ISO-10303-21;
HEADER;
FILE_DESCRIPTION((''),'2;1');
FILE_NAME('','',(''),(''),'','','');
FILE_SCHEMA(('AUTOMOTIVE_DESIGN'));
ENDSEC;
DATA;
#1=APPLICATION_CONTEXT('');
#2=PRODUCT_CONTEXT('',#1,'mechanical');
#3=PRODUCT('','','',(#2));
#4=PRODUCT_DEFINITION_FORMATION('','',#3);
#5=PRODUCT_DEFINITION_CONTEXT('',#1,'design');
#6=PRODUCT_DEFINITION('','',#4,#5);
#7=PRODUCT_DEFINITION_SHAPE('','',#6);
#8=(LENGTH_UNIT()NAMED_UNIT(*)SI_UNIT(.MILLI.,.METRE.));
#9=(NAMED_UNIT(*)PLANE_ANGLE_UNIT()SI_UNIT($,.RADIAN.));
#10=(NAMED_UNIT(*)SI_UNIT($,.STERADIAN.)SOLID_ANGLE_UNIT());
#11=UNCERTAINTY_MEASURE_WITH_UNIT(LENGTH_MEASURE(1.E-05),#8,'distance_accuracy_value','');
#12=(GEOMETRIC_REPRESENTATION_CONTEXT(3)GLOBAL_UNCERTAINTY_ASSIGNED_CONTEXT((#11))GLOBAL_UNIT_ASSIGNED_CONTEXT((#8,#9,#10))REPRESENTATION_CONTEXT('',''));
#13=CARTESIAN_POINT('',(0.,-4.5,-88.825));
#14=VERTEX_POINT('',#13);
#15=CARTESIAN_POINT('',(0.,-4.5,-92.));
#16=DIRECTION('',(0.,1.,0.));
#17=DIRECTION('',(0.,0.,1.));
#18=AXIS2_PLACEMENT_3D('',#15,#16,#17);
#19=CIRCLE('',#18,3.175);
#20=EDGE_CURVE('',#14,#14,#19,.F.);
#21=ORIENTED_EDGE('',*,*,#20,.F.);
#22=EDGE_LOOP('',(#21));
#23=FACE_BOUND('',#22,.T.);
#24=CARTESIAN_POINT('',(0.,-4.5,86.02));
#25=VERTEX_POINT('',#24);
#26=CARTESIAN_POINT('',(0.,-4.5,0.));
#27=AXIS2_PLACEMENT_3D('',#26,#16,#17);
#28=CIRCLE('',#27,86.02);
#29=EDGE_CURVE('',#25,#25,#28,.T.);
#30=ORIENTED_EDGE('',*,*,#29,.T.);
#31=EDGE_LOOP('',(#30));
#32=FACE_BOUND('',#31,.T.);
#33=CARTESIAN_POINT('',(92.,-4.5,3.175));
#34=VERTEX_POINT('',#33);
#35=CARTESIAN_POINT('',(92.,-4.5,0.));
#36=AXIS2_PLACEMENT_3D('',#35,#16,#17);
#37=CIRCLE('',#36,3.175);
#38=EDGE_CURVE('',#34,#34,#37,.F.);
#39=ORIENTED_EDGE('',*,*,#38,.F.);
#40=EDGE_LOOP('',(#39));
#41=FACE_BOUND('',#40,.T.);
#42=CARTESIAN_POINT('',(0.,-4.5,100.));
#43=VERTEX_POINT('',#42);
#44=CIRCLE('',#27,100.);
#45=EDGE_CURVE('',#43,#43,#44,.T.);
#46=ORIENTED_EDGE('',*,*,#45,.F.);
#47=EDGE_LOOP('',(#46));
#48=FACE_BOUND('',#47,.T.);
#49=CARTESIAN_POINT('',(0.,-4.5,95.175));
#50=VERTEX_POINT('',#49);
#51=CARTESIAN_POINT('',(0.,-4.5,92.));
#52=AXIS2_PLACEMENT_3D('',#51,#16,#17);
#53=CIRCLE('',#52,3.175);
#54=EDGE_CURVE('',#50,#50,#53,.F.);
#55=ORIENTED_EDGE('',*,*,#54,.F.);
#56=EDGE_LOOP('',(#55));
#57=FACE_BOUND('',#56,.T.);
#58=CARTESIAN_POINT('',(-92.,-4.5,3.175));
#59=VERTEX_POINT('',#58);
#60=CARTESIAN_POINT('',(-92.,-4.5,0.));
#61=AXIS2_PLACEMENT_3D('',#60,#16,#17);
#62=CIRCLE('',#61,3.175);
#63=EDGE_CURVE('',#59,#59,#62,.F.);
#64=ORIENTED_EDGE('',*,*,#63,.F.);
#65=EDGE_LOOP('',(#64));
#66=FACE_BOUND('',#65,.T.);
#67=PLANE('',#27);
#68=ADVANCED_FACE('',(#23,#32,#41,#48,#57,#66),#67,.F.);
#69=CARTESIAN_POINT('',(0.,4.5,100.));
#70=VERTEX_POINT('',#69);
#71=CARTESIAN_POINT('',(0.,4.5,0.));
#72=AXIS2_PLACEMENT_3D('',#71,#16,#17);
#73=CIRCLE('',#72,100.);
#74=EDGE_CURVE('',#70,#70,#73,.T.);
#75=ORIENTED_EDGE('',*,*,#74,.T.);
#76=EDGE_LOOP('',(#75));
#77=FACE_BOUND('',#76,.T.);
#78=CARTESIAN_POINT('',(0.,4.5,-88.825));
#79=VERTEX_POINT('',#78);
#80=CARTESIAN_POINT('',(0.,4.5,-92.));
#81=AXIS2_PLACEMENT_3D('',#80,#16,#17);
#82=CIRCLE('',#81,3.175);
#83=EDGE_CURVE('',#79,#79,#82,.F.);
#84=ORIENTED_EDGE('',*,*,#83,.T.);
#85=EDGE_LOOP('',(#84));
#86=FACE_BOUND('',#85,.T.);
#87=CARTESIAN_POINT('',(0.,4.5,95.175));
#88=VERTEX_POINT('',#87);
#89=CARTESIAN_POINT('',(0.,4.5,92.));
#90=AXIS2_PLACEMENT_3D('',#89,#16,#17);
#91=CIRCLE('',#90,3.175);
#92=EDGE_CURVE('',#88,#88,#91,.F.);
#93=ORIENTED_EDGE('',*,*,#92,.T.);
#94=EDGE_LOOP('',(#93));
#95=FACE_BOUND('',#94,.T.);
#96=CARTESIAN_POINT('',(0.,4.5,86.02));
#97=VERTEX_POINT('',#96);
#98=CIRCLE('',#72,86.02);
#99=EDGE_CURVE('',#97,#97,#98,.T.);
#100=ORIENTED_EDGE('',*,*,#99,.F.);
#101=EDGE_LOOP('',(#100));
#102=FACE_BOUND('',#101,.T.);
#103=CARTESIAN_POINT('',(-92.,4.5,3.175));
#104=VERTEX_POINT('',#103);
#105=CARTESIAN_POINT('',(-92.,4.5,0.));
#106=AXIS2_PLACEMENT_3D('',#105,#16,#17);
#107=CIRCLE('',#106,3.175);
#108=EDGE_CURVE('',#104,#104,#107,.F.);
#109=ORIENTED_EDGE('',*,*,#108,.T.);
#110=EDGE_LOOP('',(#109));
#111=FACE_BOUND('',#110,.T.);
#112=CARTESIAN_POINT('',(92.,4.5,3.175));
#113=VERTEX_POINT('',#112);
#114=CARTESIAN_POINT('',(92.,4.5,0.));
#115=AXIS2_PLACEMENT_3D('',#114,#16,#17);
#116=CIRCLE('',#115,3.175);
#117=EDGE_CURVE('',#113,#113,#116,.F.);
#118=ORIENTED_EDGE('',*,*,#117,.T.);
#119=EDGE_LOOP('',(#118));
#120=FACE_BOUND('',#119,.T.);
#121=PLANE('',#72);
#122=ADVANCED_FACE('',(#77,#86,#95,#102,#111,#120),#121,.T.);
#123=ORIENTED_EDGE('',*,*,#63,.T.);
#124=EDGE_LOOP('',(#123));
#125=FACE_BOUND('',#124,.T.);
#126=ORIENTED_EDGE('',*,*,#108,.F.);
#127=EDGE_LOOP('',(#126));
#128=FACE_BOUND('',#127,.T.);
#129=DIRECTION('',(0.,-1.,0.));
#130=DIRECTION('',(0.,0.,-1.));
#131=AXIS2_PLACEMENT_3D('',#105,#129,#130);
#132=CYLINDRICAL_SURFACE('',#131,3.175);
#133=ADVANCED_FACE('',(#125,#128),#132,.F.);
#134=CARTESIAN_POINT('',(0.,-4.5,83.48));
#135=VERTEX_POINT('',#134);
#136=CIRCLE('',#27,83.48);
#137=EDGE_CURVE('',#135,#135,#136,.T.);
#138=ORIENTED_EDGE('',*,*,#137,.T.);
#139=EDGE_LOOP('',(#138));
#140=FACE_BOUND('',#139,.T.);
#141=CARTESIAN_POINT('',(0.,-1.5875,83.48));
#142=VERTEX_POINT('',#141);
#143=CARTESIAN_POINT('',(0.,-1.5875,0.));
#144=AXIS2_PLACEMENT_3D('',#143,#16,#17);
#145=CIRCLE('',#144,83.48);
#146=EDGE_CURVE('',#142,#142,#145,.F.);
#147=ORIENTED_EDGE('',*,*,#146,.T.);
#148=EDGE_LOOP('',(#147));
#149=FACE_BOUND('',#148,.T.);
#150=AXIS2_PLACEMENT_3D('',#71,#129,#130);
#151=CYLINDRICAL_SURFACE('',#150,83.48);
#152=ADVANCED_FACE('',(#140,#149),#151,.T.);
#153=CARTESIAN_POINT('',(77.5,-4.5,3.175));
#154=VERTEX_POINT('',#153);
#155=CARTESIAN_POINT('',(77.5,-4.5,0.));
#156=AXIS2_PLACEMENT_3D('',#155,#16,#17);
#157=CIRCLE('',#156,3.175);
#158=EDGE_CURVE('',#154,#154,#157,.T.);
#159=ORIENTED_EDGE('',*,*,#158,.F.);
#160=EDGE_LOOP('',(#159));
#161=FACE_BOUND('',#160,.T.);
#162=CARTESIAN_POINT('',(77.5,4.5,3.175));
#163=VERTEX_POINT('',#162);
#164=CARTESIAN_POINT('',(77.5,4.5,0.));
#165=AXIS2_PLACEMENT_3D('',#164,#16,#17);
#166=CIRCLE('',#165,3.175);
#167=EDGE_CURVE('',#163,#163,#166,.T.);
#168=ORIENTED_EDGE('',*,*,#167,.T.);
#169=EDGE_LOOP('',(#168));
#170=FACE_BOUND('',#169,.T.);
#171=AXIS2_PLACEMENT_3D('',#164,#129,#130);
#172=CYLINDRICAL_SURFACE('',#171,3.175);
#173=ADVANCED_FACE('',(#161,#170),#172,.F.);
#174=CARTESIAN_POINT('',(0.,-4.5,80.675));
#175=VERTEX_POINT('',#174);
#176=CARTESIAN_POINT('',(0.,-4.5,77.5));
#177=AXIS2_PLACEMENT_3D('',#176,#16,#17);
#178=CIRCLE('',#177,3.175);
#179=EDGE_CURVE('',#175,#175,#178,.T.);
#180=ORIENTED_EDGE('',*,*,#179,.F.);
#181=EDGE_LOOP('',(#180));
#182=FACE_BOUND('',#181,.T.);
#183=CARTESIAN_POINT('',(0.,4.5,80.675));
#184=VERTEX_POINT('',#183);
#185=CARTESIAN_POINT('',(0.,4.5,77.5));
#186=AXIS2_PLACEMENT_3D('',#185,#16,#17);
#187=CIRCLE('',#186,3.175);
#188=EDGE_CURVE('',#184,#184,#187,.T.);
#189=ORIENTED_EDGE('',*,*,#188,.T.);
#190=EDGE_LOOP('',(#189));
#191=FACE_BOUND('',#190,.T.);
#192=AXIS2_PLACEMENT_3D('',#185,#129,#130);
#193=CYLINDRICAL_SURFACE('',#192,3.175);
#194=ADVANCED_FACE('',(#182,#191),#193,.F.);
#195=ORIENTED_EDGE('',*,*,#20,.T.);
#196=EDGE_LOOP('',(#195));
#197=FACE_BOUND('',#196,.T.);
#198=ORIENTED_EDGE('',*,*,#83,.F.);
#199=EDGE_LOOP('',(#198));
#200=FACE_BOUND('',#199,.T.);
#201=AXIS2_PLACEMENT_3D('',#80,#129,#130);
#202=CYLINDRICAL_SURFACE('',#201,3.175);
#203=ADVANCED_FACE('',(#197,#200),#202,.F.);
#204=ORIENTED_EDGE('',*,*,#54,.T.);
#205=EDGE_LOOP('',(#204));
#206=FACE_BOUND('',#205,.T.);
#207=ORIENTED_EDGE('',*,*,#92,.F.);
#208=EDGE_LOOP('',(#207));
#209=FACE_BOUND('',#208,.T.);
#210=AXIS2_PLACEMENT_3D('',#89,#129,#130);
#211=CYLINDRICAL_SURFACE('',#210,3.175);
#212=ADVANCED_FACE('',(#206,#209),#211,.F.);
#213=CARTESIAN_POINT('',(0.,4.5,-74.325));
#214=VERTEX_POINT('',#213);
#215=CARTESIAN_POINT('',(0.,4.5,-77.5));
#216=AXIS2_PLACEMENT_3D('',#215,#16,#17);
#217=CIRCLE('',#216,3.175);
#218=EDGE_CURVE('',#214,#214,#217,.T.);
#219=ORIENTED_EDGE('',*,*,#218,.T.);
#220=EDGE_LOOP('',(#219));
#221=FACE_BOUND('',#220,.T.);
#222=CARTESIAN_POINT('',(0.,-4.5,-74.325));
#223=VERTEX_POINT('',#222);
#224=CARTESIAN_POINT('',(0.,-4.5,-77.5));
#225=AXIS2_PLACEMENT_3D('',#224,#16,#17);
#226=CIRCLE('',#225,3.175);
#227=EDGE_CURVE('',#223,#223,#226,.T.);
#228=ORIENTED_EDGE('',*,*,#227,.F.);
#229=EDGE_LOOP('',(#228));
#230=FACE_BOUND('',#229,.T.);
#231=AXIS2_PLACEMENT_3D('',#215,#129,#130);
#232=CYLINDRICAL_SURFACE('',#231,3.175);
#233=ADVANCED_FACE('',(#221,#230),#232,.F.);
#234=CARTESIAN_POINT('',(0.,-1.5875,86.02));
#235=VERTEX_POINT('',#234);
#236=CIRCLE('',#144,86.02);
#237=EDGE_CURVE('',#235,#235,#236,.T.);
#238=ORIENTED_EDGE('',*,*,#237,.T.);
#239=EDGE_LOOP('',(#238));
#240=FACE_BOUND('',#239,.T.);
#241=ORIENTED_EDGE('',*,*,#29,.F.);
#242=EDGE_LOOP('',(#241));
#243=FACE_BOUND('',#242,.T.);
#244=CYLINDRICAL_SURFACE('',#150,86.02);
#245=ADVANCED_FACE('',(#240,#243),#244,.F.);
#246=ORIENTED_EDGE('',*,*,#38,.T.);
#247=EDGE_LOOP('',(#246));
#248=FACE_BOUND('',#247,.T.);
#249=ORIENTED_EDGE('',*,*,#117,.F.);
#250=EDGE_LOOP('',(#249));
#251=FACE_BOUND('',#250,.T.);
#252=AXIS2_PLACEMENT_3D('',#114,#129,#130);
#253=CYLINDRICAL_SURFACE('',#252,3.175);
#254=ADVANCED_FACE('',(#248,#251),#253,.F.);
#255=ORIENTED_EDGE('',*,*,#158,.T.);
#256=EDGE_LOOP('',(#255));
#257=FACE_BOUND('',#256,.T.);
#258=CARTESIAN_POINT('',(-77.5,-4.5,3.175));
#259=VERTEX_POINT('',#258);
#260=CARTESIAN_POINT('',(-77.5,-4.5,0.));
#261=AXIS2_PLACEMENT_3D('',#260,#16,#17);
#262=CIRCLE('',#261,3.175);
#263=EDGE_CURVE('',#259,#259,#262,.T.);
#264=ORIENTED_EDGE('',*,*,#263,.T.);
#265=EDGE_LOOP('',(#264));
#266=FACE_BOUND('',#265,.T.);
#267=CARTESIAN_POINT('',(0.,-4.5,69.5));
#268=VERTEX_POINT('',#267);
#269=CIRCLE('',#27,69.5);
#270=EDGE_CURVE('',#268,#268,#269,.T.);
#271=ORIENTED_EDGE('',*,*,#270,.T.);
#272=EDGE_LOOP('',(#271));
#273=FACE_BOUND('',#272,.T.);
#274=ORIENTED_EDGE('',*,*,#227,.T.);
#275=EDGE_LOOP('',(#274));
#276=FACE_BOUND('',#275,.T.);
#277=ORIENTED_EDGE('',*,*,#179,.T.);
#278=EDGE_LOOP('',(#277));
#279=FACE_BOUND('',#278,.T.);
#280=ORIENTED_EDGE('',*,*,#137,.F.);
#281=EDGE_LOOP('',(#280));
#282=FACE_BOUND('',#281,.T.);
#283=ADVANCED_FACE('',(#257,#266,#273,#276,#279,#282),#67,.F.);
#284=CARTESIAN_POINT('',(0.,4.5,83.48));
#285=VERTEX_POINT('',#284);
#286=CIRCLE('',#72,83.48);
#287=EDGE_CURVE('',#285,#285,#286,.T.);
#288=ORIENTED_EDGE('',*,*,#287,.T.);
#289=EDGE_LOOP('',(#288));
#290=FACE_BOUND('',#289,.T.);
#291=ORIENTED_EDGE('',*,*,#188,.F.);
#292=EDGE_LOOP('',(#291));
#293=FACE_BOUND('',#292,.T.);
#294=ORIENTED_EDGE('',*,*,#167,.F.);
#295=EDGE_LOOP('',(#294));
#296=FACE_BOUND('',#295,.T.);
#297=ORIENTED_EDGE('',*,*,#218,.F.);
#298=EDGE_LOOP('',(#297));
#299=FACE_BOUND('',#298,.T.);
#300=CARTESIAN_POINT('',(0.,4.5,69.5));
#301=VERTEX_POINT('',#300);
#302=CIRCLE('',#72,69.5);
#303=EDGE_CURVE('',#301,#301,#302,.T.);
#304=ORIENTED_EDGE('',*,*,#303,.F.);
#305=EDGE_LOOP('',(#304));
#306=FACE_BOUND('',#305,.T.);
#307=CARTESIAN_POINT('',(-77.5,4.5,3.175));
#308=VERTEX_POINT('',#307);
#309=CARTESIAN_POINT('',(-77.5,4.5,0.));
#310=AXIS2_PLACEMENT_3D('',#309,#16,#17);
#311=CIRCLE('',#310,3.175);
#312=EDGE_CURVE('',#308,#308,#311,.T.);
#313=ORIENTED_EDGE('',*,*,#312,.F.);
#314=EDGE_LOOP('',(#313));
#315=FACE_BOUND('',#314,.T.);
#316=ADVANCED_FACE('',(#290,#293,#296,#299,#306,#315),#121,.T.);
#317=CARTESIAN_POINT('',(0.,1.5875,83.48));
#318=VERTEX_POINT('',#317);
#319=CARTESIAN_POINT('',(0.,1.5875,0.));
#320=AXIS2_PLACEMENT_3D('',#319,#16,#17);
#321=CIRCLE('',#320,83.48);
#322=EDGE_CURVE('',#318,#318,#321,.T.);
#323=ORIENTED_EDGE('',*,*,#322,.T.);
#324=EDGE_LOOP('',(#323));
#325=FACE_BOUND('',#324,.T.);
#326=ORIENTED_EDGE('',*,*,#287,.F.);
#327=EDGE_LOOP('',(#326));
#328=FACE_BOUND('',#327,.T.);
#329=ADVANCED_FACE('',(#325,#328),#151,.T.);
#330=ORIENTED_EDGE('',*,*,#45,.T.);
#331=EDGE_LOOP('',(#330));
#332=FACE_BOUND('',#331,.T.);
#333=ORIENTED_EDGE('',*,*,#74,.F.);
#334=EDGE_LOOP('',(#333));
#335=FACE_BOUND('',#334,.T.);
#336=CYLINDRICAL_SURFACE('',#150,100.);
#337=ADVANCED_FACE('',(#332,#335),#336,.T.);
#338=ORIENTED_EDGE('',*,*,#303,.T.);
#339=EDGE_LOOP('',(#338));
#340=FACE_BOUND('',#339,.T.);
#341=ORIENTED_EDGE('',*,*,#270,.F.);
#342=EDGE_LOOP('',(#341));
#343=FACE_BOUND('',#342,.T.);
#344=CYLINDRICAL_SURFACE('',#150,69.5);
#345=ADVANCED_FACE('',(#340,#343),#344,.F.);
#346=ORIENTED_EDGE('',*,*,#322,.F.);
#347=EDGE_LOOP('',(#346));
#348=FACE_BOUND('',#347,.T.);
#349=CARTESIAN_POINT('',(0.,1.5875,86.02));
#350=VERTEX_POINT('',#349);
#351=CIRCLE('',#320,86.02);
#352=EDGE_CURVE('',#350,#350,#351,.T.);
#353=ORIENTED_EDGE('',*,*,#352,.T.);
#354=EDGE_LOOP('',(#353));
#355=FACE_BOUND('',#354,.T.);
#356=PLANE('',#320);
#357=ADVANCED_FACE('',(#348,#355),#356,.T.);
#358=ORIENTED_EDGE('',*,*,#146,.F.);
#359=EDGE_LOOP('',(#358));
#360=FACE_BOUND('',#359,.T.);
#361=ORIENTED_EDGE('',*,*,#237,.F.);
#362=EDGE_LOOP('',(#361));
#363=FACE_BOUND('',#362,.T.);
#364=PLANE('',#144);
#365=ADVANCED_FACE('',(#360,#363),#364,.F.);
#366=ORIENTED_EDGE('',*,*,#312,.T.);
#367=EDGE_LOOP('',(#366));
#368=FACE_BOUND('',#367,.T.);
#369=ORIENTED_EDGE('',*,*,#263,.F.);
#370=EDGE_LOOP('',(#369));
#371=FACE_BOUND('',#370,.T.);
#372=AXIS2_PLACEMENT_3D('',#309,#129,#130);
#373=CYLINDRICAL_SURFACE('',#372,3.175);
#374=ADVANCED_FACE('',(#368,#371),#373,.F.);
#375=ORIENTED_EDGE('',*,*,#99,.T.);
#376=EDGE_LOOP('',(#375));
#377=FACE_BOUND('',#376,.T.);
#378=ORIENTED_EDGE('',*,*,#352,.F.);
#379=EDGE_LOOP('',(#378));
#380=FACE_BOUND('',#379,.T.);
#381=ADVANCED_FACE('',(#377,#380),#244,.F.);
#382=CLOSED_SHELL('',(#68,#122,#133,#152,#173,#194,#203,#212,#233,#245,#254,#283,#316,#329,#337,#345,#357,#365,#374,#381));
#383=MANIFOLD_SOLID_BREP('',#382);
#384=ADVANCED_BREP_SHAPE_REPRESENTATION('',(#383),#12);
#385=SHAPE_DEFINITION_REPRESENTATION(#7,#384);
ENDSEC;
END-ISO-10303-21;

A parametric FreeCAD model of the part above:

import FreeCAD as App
import Part
import Sketcher

V = App.Vector

doc = App.newDocument("Part")
body = doc.addObject("PartDesign::Body", "Body")

sketch1 = body.newObject("Sketcher::SketchObject", "Sketch")
sketch1.AttachmentSupport = (doc.getObject("XZ_Plane"), [""])
sketch1.MapMode = "FlatFace"
sketch1.addGeometry([
    Part.Circle(V(0, 0, 0), V(0, 0, 1), 100),
    Part.Circle(V(0, -92, 0), V(0, 0, 1), 3.2),
    Part.Circle(V(-92, 0, 0), V(0, 0, 1), 3.2),
    Part.Circle(V(92, 0, 0), V(0, 0, 1), 3.2),
    Part.Circle(V(0, 0, 0), V(0, 0, 1), 86),
    Part.Circle(V(0, 92, 0), V(0, 0, 1), 3.2),
], False)
sketch1.addConstraint([
    Sketcher.Constraint("Coincident", 0, 3, -1, 1),
    Sketcher.Constraint("Coincident", 4, 3, -1, 1),
    Sketcher.Constraint("Equal", 1, 2),
    Sketcher.Constraint("Equal", 2, 3),
    Sketcher.Constraint("Equal", 3, 5),
    Sketcher.Constraint("Symmetric", 2, 3, 3, 3, -1, 1),
    Sketcher.Constraint("Symmetric", 1, 3, 5, 3, -1, 1),
    Sketcher.Constraint("PointOnObject", 1, 3, -2),
    Sketcher.Constraint("PointOnObject", 2, 3, -1),
    Sketcher.Constraint("Diameter", 0, 200.0),
    Sketcher.Constraint("Diameter", 1, 6.35),
    Sketcher.Constraint("Diameter", 4, 172.04),
    Sketcher.Constraint("DistanceY", 1, 3, -1, 1, 92.0),
    Sketcher.Constraint("DistanceX", 2, 3, -1, 1, 92.0),
])
pad1 = body.newObject("PartDesign::Pad", "Pad")
pad1.Profile = sketch1
pad1.Length = 9
pad1.Midplane = True
body2 = doc.addObject("PartDesign::Body", "Body001")

sketch2 = body2.newObject("Sketcher::SketchObject", "Sketch001")
sketch2.AttachmentSupport = (doc.getObject("XZ_Plane001"), [""])
sketch2.MapMode = "FlatFace"
sketch2.addGeometry([
    Part.Circle(V(0, 0, 0), V(0, 0, 1), 83.5),
    Part.Circle(V(0, -77.5, 0), V(0, 0, 1), 3.2),
    Part.Circle(V(-77.5, 0, 0), V(0, 0, 1), 3.2),
    Part.Circle(V(77.5, 0, 0), V(0, 0, 1), 3.2),
    Part.Circle(V(0, 0, 0), V(0, 0, 1), 69.5),
    Part.Circle(V(0, 77.5, 0), V(0, 0, 1), 3.2),
], False)
sketch2.addConstraint([
    Sketcher.Constraint("Coincident", 0, 3, -1, 1),
    Sketcher.Constraint("Coincident", 4, 3, -1, 1),
    Sketcher.Constraint("Equal", 1, 2),
    Sketcher.Constraint("Equal", 2, 3),
    Sketcher.Constraint("Equal", 3, 5),
    Sketcher.Constraint("Symmetric", 2, 3, 3, 3, -1, 1),
    Sketcher.Constraint("Symmetric", 1, 3, 5, 3, -1, 1),
    Sketcher.Constraint("PointOnObject", 1, 3, -2),
    Sketcher.Constraint("PointOnObject", 2, 3, -1),
    Sketcher.Constraint("Diameter", 4, 139.0),
    Sketcher.Constraint("Diameter", 0, 166.96),
    Sketcher.Constraint("Diameter", 1, 6.35),
    Sketcher.Constraint("DistanceX", 2, 3, 3, 3, 155.0),
    Sketcher.Constraint("DistanceY", 1, 3, 5, 3, 155.0),
])
pad2 = body2.newObject("PartDesign::Pad", "Pad001")
pad2.Profile = sketch2
pad2.Length = 9
pad2.Midplane = True
body.AllowCompound = True
doc.recompute()

boolean = body.newObject("PartDesign::Boolean", "Boolean")
boolean.Type = "Fuse"
boolean.addObjects([body2])

sketch3 = body.newObject("Sketcher::SketchObject", "Sketch002")
sketch3.AttachmentSupport = (doc.getObject("XZ_Plane"), [""])
sketch3.MapMode = "FlatFace"
sketch3.addGeometry([
    Part.Circle(V(0, 0, 0), V(0, 0, 1), 86),
    Part.Circle(V(0, 0, 0), V(0, 0, 1), 83),
], False)
sketch3.addConstraint([
    Sketcher.Constraint("Coincident", 0, 3, -1, 1),
    Sketcher.Constraint("Coincident", 1, 3, -1, 1),
    Sketcher.Constraint("Diameter", 0, 172.04),
    Sketcher.Constraint("Diameter", 1, 166.96),
])
pad3 = body.newObject("PartDesign::Pad", "Pad002")
pad3.Profile = sketch3
pad3.Length = 3.175
pad3.Midplane = True

doc.recompute()
